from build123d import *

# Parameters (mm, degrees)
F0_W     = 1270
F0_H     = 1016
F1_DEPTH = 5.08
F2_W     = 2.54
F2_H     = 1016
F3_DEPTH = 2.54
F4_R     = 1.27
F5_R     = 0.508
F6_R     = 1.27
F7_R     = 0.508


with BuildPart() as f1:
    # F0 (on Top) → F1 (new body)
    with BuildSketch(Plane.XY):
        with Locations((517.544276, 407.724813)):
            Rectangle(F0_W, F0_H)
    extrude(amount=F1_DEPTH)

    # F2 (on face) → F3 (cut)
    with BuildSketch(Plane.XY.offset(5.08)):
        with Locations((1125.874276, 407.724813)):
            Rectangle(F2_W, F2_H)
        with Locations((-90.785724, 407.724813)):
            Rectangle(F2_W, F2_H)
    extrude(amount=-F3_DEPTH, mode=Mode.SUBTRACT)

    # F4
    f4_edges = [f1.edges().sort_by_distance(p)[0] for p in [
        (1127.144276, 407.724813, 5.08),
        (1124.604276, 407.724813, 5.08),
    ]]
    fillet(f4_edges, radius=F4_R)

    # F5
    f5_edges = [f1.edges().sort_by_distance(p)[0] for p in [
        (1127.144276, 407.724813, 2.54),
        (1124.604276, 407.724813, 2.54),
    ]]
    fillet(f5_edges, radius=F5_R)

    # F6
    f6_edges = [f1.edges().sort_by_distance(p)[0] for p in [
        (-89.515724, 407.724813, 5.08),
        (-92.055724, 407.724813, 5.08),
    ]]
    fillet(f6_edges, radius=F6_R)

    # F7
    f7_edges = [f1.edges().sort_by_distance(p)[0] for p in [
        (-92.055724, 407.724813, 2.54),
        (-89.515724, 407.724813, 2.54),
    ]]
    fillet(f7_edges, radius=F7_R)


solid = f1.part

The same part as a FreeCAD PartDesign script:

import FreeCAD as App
import Part
import Sketcher
from FreeCAD import Vector
Q = App.Units.Quantity


def edges_at(feature, points):
    """Names of the edges that pass closest to the given points."""
    edges = feature.Shape.Edges
    near = lambda p: min(range(len(edges)), key=lambda i: edges[i].distToShape(Part.Vertex(*p))[0])
    return sorted({f"Edge{near(p) + 1}" for p in points})

doc = App.newDocument("Part")
body = doc.addObject("PartDesign::Body", "Body")

sketch1 = body.newObject("Sketcher::SketchObject", "Sketch")
sketch1.AttachmentSupport = (doc.getObject("XY_Plane"), [""])
sketch1.MapMode = "FlatFace"
sketch1.addGeometry(Part.LineSegment(Vector(-117, 916, 0), Vector(-117, -100, 0)), False)
sketch1.addGeometry(Part.LineSegment(Vector(-117, -100, 0), Vector(1153, -100, 0)), False)
sketch1.addGeometry(Part.LineSegment(Vector(1153, -100, 0), Vector(1153, 916, 0)), False)
sketch1.addGeometry(Part.LineSegment(Vector(1153, 916, 0), Vector(-117, 916, 0)), False)
sketch1.addConstraint(Sketcher.Constraint("Coincident", 0, 2, 1, 1))
sketch1.addConstraint(Sketcher.Constraint("Coincident", 1, 2, 2, 1))
sketch1.addConstraint(Sketcher.Constraint("Coincident", 2, 2, 3, 1))
sketch1.addConstraint(Sketcher.Constraint("Coincident", 3, 2, 0, 1))
sketch1.addConstraint(Sketcher.Constraint("Vertical", 0))
sketch1.addConstraint(Sketcher.Constraint("Horizontal", 1))
sketch1.addConstraint(Sketcher.Constraint("Vertical", 2))
sketch1.addConstraint(Sketcher.Constraint("Horizontal", 3))
sketch1.addConstraint(Sketcher.Constraint("DistanceX", 1, 1, 1, 2, Q("50 in")))
sketch1.addConstraint(Sketcher.Constraint("DistanceY", 0, 2, 0, 1, Q("40 in")))
sketch1.addConstraint(Sketcher.Constraint("DistanceX", 0, 2, -1, 1, Q("117.455724 mm")))
sketch1.addConstraint(Sketcher.Constraint("DistanceY", 0, 2, -1, 1, Q("100.275187 mm")))
pad1 = body.newObject("PartDesign::Pad", "Pad")
pad1.Profile = sketch1
pad1.Length = Q("0.2 in")

sketch2 = body.newObject("Sketcher::SketchObject", "Sketch001")
sketch2.AttachmentSupport = (doc.getObject("XY_Plane"), [""])
sketch2.MapMode = "FlatFace"
sketch2.AttachmentOffset = App.Placement(Vector(0, 0, 0.2 * 25.4), App.Rotation())
sketch2.addGeometry(Part.LineSegment(Vector(1124.6, 915.7, 0), Vector(1124.6, -100.3, 0)), False)
sketch2.addGeometry(Part.LineSegment(Vector(1124.6, -100.3, 0), Vector(1127.1, -100.3, 0)), False)
sketch2.addGeometry(Part.LineSegment(Vector(1127.1, -100.3, 0), Vector(1127.1, 915.7, 0)), False)
sketch2.addGeometry(Part.LineSegment(Vector(1127.1, 915.7, 0), Vector(1124.6, 915.7, 0)), False)
sketch2.addGeometry(Part.LineSegment(Vector(-92.1, 915.7, 0), Vector(-92.1, -100.3, 0)), False)
sketch2.addGeometry(Part.LineSegment(Vector(-92.1, -100.3, 0), Vector(-89.5, -100.3, 0)), False)
sketch2.addGeometry(Part.LineSegment(Vector(-89.5, -100.3, 0), Vector(-89.5, 915.7, 0)), False)
sketch2.addGeometry(Part.LineSegment(Vector(-89.5, 915.7, 0), Vector(-92.1, 915.7, 0)), False)
sketch2.addConstraint(Sketcher.Constraint("Coincident", 0, 2, 1, 1))
sketch2.addConstraint(Sketcher.Constraint("Coincident", 1, 2, 2, 1))
sketch2.addConstraint(Sketcher.Constraint("Coincident", 2, 2, 3, 1))
sketch2.addConstraint(Sketcher.Constraint("Coincident", 3, 2, 0, 1))
sketch2.addConstraint(Sketcher.Constraint("Coincident", 4, 2, 5, 1))
sketch2.addConstraint(Sketcher.Constraint("Coincident", 5, 2, 6, 1))
sketch2.addConstraint(Sketcher.Constraint("Coincident", 6, 2, 7, 1))
sketch2.addConstraint(Sketcher.Constraint("Coincident", 7, 2, 4, 1))
sketch2.addConstraint(Sketcher.Constraint("Vertical", 0))
sketch2.addConstraint(Sketcher.Constraint("Horizontal", 1))
sketch2.addConstraint(Sketcher.Constraint("Vertical", 2))
sketch2.addConstraint(Sketcher.Constraint("Horizontal", 3))
sketch2.addConstraint(Sketcher.Constraint("Vertical", 4))
sketch2.addConstraint(Sketcher.Constraint("Horizontal", 5))
sketch2.addConstraint(Sketcher.Constraint("Vertical", 6))
sketch2.addConstraint(Sketcher.Constraint("Horizontal", 7))
sketch2.addConstraint(Sketcher.Constraint("Horizontal", 1, 2, 4, 2))
sketch2.addConstraint(Sketcher.Constraint("Horizontal", 3, 2, 6, 2))
sketch2.addConstraint(Sketcher.Constraint("Equal", 3, 5))
sketch2.addConstraint(Sketcher.Constraint("DistanceY", 0, 2, 0, 1, Q("40 in")))
sketch2.addConstraint(Sketcher.Constraint("DistanceX", 1, 1, 1, 2, Q("0.1 in")))
sketch2.addConstraint(Sketcher.Constraint("DistanceX", 4, 2, 1, 2, Q("48 in")))
sketch2.addConstraint(Sketcher.Constraint("DistanceX", -1, 1, 0, 2, Q("1124.604276 mm")))
sketch2.addConstraint(Sketcher.Constraint("DistanceY", 0, 2, -1, 1, Q("100.275187 mm")))
pocket1 = body.newObject("PartDesign::Pocket", "Pocket")
pocket1.Profile = sketch2
pocket1.Length = Q("0.1 in")
doc.recompute()

fillet = body.newObject("PartDesign::Fillet", "Fillet")
fillet.Base = (pocket1, edges_at(pocket1, [(1127.144, 407.725, 5.08), (1124.604, 407.725, 5.08)]))
fillet.Radius = Q("0.05 in")
doc.recompute()

fillet2 = body.newObject("PartDesign::Fillet", "Fillet001")
fillet2.Base = (fillet, edges_at(fillet, [(1127.144, 407.725, 2.54), (1124.604, 407.725, 2.54)]))
fillet2.Radius = Q("0.02 in")
doc.recompute()

fillet3 = body.newObject("PartDesign::Fillet", "Fillet002")
fillet3.Base = (fillet2, edges_at(fillet2, [(-89.516, 407.725, 5.08), (-92.056, 407.725, 5.08)]))
fillet3.Radius = Q("0.05 in")
doc.recompute()

fillet4 = body.newObject("PartDesign::Fillet", "Fillet003")
fillet4.Base = (fillet3, edges_at(fillet3, [(-92.056, 407.725, 2.54), (-89.516, 407.725, 2.54)]))
fillet4.Radius = Q("0.02 in")

doc.recompute()
